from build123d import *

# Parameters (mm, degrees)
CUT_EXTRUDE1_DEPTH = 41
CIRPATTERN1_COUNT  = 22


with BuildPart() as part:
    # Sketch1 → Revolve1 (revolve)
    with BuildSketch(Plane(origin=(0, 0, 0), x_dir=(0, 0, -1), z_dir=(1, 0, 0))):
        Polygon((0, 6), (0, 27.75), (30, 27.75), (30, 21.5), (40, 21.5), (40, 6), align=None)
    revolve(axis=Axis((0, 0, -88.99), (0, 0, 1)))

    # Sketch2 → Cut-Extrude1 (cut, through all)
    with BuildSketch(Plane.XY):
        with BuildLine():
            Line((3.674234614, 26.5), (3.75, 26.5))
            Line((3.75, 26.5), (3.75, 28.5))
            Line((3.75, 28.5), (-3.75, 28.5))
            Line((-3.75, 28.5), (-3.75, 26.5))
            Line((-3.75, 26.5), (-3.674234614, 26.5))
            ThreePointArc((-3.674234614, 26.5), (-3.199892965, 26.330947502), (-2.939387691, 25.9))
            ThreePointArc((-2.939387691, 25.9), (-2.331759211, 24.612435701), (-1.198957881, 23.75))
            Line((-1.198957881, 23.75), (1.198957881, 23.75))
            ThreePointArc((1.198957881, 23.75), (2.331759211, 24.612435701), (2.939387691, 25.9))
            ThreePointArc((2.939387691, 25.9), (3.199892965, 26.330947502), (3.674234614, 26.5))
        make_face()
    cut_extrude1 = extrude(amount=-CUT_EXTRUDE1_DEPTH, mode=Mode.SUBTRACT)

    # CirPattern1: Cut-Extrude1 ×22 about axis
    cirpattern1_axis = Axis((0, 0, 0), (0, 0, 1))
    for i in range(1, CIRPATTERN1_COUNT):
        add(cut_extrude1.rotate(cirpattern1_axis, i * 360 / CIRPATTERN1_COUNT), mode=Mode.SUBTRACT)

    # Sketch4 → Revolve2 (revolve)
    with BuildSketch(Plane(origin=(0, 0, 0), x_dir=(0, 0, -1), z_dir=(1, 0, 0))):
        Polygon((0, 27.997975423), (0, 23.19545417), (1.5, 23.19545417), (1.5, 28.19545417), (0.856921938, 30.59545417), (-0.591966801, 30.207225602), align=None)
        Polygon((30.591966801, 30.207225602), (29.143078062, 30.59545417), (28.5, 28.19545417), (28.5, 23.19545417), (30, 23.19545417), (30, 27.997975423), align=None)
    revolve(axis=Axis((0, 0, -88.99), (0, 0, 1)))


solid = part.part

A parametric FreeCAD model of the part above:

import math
import FreeCAD as App
import Part
import Sketcher
Q = App.Units.Quantity

doc = App.newDocument("Part")
params = doc.addObject("Spreadsheet::Sheet", "Params")
for row, (alias, value) in enumerate([
    ("sketch1_height", "40 mm"),
    ("sketch1_height2", "10 mm"),
    ("sketch1_width", "15.5 mm"),
    ("sketch1_width2", "21.75 mm"),
    ("revolution_angle", "360 deg"),
    ("sketch2_radius", "3 mm"),
    ("sketch2_height", "2 mm"),
    ("sketch2_radius2", "0.75 mm"),
    ("sketch2_width", "7.5 mm"),
    ("sketch3_width", "5 mm"),
    ("sketch3_height", "1.5 mm"),
    ("sketch3_length", "1.5 mm"),
    ("revolution2_angle", "360 deg"),
], start=1):
    params.set(f"A{row}", alias)
    params.set(f"B{row}", "=" + value)
    params.setAlias(f"B{row}", alias)

body = doc.addObject("PartDesign::Body", "Body")

sketch1 = doc.addObject("Sketcher::SketchObject", "Sketch")
body.addObject(sketch1)
sketch1.AttachmentSupport = (doc.YZ_Plane, [""])
sketch1.MapMode = "FlatFace"
sketch1.addGeometry(Part.LineSegment(App.Vector(28, 0, 0), App.Vector(6, 0, 0)), False)
sketch1.addGeometry(Part.LineSegment(App.Vector(6, 0, 0), App.Vector(6, -40, 0)), False)
sketch1.addGeometry(Part.LineSegment(App.Vector(6, -40, 0), App.Vector(22, -40, 0)), False)
sketch1.addGeometry(Part.LineSegment(App.Vector(22, -40, 0), App.Vector(22, -30, 0)), False)
sketch1.addGeometry(Part.LineSegment(App.Vector(22, -30, 0), App.Vector(28, -30, 0)), False)
sketch1.addGeometry(Part.LineSegment(App.Vector(28, -30, 0), App.Vector(28, 0, 0)), False)
sketch1.addConstraint(Sketcher.Constraint("Coincident", 0, 2, 1, 1))
sketch1.addConstraint(Sketcher.Constraint("Coincident", 1, 2, 2, 1))
sketch1.addConstraint(Sketcher.Constraint("Coincident", 2, 2, 3, 1))
sketch1.addConstraint(Sketcher.Constraint("Coincident", 3, 2, 4, 1))
sketch1.addConstraint(Sketcher.Constraint("Coincident", 4, 2, 5, 1))
sketch1.addConstraint(Sketcher.Constraint("Coincident", 5, 2, 0, 1))
sketch1.addConstraint(Sketcher.Constraint("Horizontal", 0))
sketch1.addConstraint(Sketcher.Constraint("Vertical", 1))
sketch1.addConstraint(Sketcher.Constraint("Horizontal", 2))
sketch1.addConstraint(Sketcher.Constraint("Vertical", 3))
sketch1.addConstraint(Sketcher.Constraint("Horizontal", 4))
sketch1.addConstraint(Sketcher.Constraint("Vertical", 5))
sketch1.addConstraint(Sketcher.Constraint("PointOnObject", 0, 2, -1))
sketch1.addConstraint(Sketcher.Constraint("DistanceY", 1, 2, 1, 1, Q("40 mm")))
sketch1.addConstraint(Sketcher.Constraint("DistanceY", 3, 1, 3, 2, Q("10 mm")))
sketch1.addConstraint(Sketcher.Constraint("DistanceX", 2, 1, 2, 2, Q("15.5 mm")))
sketch1.addConstraint(Sketcher.Constraint("DistanceX", -1, 1, 0, 2, Q("6 mm")))
sketch1.addConstraint(Sketcher.Constraint("DistanceX", 0, 2, 0, 1, Q("21.75 mm")))
sketch1.setExpression("Constraints[13]", "Params.sketch1_height")
sketch1.setExpression("Constraints[14]", "Params.sketch1_height2")
sketch1.setExpression("Constraints[15]", "Params.sketch1_width")
sketch1.setExpression("Constraints[17]", "Params.sketch1_width2")
revolution = doc.addObject("PartDesign::Revolution", "Revolution")
body.addObject(revolution)
revolution.Profile = sketch1
revolution.ReferenceAxis = (sketch1, ["V_Axis"])
revolution.setExpression("Angle", "Params.revolution_angle")

sketch2 = doc.addObject("Sketcher::SketchObject", "Sketch001")
body.addObject(sketch2)
sketch2.AttachmentSupport = (doc.XY_Plane, [""])
sketch2.MapMode = "FlatFace"
sketch2.addGeometry(Part.LineSegment(App.Vector(3.67, 26.5, 0), App.Vector(3.75, 26.5, 0)), False)
sketch2.addGeometry(Part.LineSegment(App.Vector(3.75, 26.5, 0), App.Vector(3.75, 28.5, 0)), False)
sketch2.addGeometry(Part.LineSegment(App.Vector(3.75, 28.5, 0), App.Vector(-3.75, 28.5, 0)), False)
sketch2.addGeometry(Part.LineSegment(App.Vector(-3.75, 28.5, 0), App.Vector(-3.75, 26.5, 0)), False)
sketch2.addGeometry(Part.LineSegment(App.Vector(-3.75, 26.5, 0), App.Vector(-3.67, 26.5, 0)), False)
sketch2.addGeometry(Part.ArcOfCircle(Part.Circle(App.Vector(-3.67, 25.75, 0), App.Vector(0, 0, 1), 0.75), math.radians(12), math.radians(90)), False)
sketch2.addGeometry(Part.ArcOfCircle(Part.Circle(App.Vector(0, 26.5, 0), App.Vector(0, 0, 1), 3), math.radians(-168), math.radians(-114)), False)
sketch2.addGeometry(Part.LineSegment(App.Vector(-1.2, 23.75, 0), App.Vector(1.2, 23.75, 0)), False)
sketch2.addGeometry(Part.ArcOfCircle(Part.Circle(App.Vector(0, 26.5, 0), App.Vector(0, 0, 1), 3), math.radians(-66), math.radians(-12)), False)
sketch2.addGeometry(Part.ArcOfCircle(Part.Circle(App.Vector(3.67, 25.75, 0), App.Vector(0, 0, 1), 0.75), math.radians(90), math.radians(168)), False)
sketch2.addConstraint(Sketcher.Constraint("Coincident", 0, 2, 1, 1))
sketch2.addConstraint(Sketcher.Constraint("Coincident", 1, 2, 2, 1))
sketch2.addConstraint(Sketcher.Constraint("Coincident", 2, 2, 3, 1))
sketch2.addConstraint(Sketcher.Constraint("Coincident", 3, 2, 4, 1))
sketch2.addConstraint(Sketcher.Constraint("Tangent", 4, 2, 5, 2))
sketch2.addConstraint(Sketcher.Constraint("Tangent", 5, 1, 6, 1))
sketch2.addConstraint(Sketcher.Constraint("Coincident", 6, 2, 7, 1))
sketch2.addConstraint(Sketcher.Constraint("Coincident", 7, 2, 8, 1))
sketch2.addConstraint(Sketcher.Constraint("Tangent", 8, 2, 9, 2))
sketch2.addConstraint(Sketcher.Constraint("Tangent", 9, 1, 0, 1))
sketch2.addConstraint(Sketcher.Constraint("Horizontal", 0))
sketch2.addConstraint(Sketcher.Constraint("Vertical", 1))
sketch2.addConstraint(Sketcher.Constraint("Horizontal", 2))
sketch2.addConstraint(Sketcher.Constraint("Vertical", 3))
sketch2.addConstraint(Sketcher.Constraint("Horizontal", 4))
sketch2.addConstraint(Sketcher.Constraint("Horizontal", 7))
sketch2.addConstraint(Sketcher.Constraint("Coincident", 8, 3, 6, 3))
sketch2.addConstraint(Sketcher.Constraint("Equal", 6, 8))
sketch2.addConstraint(Sketcher.Constraint("Equal", 5, 9))
sketch2.addConstraint(Sketcher.Constraint("Symmetric", 5, 3, 9, 3, -2))
sketch2.addConstraint(Sketcher.Constraint("Horizontal", 8, 3, 0, 2))
sketch2.addConstraint(Sketcher.Constraint("Equal", 0, 4))
sketch2.addConstraint(Sketcher.Constraint("Radius", 6, Q("3 mm")))
sketch2.addConstraint(Sketcher.Constraint("DistanceY", 1, 1, 1, 2, Q("2 mm")))
sketch2.addConstraint(Sketcher.Constraint("Radius", 5, Q("0.75 mm")))
sketch2.addConstraint(Sketcher.Constraint("DistanceX", 2, 2, 2, 1, Q("7.5 mm")))
sketch2.addConstraint(Sketcher.Constraint("DistanceY", 6, 2, 5, 3, Q("2 mm")))
sketch2.addConstraint(Sketcher.Constraint("DistanceY", -1, 1, 6, 3, Q("26.5 mm")))
sketch2.setExpression("Constraints[22]", "Params.sketch2_radius")
sketch2.setExpression("Constraints[23]", "Params.sketch2_height")
sketch2.setExpression("Constraints[24]", "Params.sketch2_radius2")
sketch2.setExpression("Constraints[25]", "Params.sketch2_width")
pocket1 = doc.addObject("PartDesign::Pocket", "Pocket")
body.addObject(pocket1)
pocket1.Profile = sketch2
pocket1.Type = "ThroughAll"
doc.recompute()

polarpattern = doc.addObject("PartDesign::PolarPattern", "PolarPattern")
body.addObject(polarpattern)
polarpattern.Originals = [pocket1]
polarpattern.Axis = (doc.Z_Axis, [""])
polarpattern.Angle = 360
polarpattern.Occurrences = 22
body.Tip = polarpattern

sketch3 = doc.addObject("Sketcher::SketchObject", "Sketch002")
body.addObject(sketch3)
sketch3.AttachmentSupport = (doc.YZ_Plane, [""])
sketch3.MapMode = "FlatFace"
sketch3.addGeometry(Part.LineSegment(App.Vector(28, 0, 0), App.Vector(23.2, 0, 0)), False)
sketch3.addGeometry(Part.LineSegment(App.Vector(23.2, 0, 0), App.Vector(23.2, -1.5, 0)), False)
sketch3.addGeometry(Part.LineSegment(App.Vector(23.2, -1.5, 0), App.Vector(28.2, -1.5, 0)), False)
sketch3.addGeometry(Part.LineSegment(App.Vector(28.2, -1.5, 0), App.Vector(30.6, -0.9, 0)), False)
sketch3.addGeometry(Part.LineSegment(App.Vector(30.6, -0.9, 0), App.Vector(30.2, 0.6, 0)), False)
sketch3.addGeometry(Part.LineSegment(App.Vector(30.2, 0.6, 0), App.Vector(28, 0, 0)), False)
sketch3.addGeometry(Part.LineSegment(App.Vector(30.2, -30.6, 0), App.Vector(30.6, -29.1, 0)), False)
sketch3.addGeometry(Part.LineSegment(App.Vector(30.6, -29.1, 0), App.Vector(28.2, -28.5, 0)), False)
sketch3.addGeometry(Part.LineSegment(App.Vector(28.2, -28.5, 0), App.Vector(23.2, -28.5, 0)), False)
sketch3.addGeometry(Part.LineSegment(App.Vector(23.2, -28.5, 0), App.Vector(23.2, -30, 0)), False)
sketch3.addGeometry(Part.LineSegment(App.Vector(23.2, -30, 0), App.Vector(28, -30, 0)), False)
sketch3.addGeometry(Part.LineSegment(App.Vector(28, -30, 0), App.Vector(30.2, -30.6, 0)), False)
sketch3.addConstraint(Sketcher.Constraint("Coincident", 0, 2, 1, 1))
sketch3.addConstraint(Sketcher.Constraint("Coincident", 1, 2, 2, 1))
sketch3.addConstraint(Sketcher.Constraint("Coincident", 2, 2, 3, 1))
sketch3.addConstraint(Sketcher.Constraint("Coincident", 3, 2, 4, 1))
sketch3.addConstraint(Sketcher.Constraint("Coincident", 4, 2, 5, 1))
sketch3.addConstraint(Sketcher.Constraint("Coincident", 5, 2, 0, 1))
sketch3.addConstraint(Sketcher.Constraint("Coincident", 6, 2, 7, 1))
sketch3.addConstraint(Sketcher.Constraint("Coincident", 7, 2, 8, 1))
sketch3.addConstraint(Sketcher.Constraint("Coincident", 8, 2, 9, 1))
sketch3.addConstraint(Sketcher.Constraint("Coincident", 9, 2, 10, 1))
sketch3.addConstraint(Sketcher.Constraint("Coincident", 10, 2, 11, 1))
sketch3.addConstraint(Sketcher.Constraint("Coincident", 11, 2, 6, 1))
sketch3.addConstraint(Sketcher.Constraint("Horizontal", 0))
sketch3.addConstraint(Sketcher.Constraint("Vertical", 1))
sketch3.addConstraint(Sketcher.Constraint("Horizontal", 2))
sketch3.addConstraint(Sketcher.Constraint("Horizontal", 8))
sketch3.addConstraint(Sketcher.Constraint("Vertical", 9))
sketch3.addConstraint(Sketcher.Constraint("Horizontal", 10))
sketch3.addConstraint(Sketcher.Constraint("PointOnObject", 0, 2, -1))
sketch3.addConstraint(Sketcher.Constraint("Perpendicular", 3, 4))
sketch3.addConstraint(Sketcher.Constraint("Perpendicular", 4, 5))
sketch3.addConstraint(Sketcher.Constraint("Perpendicular", 6, 7))
sketch3.addConstraint(Sketcher.Constraint("Parallel", 7, 11))
sketch3.addConstraint(Sketcher.Constraint("Vertical", 3, 2, 6, 2))
sketch3.addConstraint(Sketcher.Constraint("Vertical", 2, 2, 7, 2))
sketch3.addConstraint(Sketcher.Constraint("Vertical", 1, 2, 8, 2))
sketch3.addConstraint(Sketcher.Constraint("Vertical", 5, 2, 10, 2))
sketch3.addConstraint(Sketcher.Constraint("Vertical", 4, 2, 11, 2))
sketch3.addConstraint(Sketcher.Constraint("Equal", 1, 9))
sketch3.addConstraint(Sketcher.Constraint("DistanceX", 2, 1, 2, 2, Q("5 mm")))
sketch3.addConstraint(Sketcher.Constraint("Angle", 3, Q("15 deg")))
sketch3.addConstraint(Sketcher.Constraint("DistanceY", 1, 2, 1, 1, Q("1.5 mm")))
sketch3.addConstraint(Sketcher.Constraint("DistanceY", 9, 2, -1, 1, Q("30 mm")))
sketch3.addConstraint(Sketcher.Constraint("Distance", 4, Q("1.5 mm")))
sketch3.addConstraint(Sketcher.Constraint("DistanceX", 2, 2, 3, 2, Q("2.4 mm")))
sketch3.addConstraint(Sketcher.Constraint("DistanceX", -1, 1, 0, 2, Q("23.195454 mm")))
sketch3.setExpression("Constraints[29]", "Params.sketch3_width")
sketch3.setExpression("Constraints[31]", "Params.sketch3_height")
sketch3.setExpression("Constraints[33]", "Params.sketch3_length")
revolution2 = doc.addObject("PartDesign::Revolution", "Revolution001")
body.addObject(revolution2)
revolution2.Profile = sketch3
revolution2.ReferenceAxis = (sketch3, ["V_Axis"])
revolution2.setExpression("Angle", "Params.revolution2_angle")

doc.recompute()
